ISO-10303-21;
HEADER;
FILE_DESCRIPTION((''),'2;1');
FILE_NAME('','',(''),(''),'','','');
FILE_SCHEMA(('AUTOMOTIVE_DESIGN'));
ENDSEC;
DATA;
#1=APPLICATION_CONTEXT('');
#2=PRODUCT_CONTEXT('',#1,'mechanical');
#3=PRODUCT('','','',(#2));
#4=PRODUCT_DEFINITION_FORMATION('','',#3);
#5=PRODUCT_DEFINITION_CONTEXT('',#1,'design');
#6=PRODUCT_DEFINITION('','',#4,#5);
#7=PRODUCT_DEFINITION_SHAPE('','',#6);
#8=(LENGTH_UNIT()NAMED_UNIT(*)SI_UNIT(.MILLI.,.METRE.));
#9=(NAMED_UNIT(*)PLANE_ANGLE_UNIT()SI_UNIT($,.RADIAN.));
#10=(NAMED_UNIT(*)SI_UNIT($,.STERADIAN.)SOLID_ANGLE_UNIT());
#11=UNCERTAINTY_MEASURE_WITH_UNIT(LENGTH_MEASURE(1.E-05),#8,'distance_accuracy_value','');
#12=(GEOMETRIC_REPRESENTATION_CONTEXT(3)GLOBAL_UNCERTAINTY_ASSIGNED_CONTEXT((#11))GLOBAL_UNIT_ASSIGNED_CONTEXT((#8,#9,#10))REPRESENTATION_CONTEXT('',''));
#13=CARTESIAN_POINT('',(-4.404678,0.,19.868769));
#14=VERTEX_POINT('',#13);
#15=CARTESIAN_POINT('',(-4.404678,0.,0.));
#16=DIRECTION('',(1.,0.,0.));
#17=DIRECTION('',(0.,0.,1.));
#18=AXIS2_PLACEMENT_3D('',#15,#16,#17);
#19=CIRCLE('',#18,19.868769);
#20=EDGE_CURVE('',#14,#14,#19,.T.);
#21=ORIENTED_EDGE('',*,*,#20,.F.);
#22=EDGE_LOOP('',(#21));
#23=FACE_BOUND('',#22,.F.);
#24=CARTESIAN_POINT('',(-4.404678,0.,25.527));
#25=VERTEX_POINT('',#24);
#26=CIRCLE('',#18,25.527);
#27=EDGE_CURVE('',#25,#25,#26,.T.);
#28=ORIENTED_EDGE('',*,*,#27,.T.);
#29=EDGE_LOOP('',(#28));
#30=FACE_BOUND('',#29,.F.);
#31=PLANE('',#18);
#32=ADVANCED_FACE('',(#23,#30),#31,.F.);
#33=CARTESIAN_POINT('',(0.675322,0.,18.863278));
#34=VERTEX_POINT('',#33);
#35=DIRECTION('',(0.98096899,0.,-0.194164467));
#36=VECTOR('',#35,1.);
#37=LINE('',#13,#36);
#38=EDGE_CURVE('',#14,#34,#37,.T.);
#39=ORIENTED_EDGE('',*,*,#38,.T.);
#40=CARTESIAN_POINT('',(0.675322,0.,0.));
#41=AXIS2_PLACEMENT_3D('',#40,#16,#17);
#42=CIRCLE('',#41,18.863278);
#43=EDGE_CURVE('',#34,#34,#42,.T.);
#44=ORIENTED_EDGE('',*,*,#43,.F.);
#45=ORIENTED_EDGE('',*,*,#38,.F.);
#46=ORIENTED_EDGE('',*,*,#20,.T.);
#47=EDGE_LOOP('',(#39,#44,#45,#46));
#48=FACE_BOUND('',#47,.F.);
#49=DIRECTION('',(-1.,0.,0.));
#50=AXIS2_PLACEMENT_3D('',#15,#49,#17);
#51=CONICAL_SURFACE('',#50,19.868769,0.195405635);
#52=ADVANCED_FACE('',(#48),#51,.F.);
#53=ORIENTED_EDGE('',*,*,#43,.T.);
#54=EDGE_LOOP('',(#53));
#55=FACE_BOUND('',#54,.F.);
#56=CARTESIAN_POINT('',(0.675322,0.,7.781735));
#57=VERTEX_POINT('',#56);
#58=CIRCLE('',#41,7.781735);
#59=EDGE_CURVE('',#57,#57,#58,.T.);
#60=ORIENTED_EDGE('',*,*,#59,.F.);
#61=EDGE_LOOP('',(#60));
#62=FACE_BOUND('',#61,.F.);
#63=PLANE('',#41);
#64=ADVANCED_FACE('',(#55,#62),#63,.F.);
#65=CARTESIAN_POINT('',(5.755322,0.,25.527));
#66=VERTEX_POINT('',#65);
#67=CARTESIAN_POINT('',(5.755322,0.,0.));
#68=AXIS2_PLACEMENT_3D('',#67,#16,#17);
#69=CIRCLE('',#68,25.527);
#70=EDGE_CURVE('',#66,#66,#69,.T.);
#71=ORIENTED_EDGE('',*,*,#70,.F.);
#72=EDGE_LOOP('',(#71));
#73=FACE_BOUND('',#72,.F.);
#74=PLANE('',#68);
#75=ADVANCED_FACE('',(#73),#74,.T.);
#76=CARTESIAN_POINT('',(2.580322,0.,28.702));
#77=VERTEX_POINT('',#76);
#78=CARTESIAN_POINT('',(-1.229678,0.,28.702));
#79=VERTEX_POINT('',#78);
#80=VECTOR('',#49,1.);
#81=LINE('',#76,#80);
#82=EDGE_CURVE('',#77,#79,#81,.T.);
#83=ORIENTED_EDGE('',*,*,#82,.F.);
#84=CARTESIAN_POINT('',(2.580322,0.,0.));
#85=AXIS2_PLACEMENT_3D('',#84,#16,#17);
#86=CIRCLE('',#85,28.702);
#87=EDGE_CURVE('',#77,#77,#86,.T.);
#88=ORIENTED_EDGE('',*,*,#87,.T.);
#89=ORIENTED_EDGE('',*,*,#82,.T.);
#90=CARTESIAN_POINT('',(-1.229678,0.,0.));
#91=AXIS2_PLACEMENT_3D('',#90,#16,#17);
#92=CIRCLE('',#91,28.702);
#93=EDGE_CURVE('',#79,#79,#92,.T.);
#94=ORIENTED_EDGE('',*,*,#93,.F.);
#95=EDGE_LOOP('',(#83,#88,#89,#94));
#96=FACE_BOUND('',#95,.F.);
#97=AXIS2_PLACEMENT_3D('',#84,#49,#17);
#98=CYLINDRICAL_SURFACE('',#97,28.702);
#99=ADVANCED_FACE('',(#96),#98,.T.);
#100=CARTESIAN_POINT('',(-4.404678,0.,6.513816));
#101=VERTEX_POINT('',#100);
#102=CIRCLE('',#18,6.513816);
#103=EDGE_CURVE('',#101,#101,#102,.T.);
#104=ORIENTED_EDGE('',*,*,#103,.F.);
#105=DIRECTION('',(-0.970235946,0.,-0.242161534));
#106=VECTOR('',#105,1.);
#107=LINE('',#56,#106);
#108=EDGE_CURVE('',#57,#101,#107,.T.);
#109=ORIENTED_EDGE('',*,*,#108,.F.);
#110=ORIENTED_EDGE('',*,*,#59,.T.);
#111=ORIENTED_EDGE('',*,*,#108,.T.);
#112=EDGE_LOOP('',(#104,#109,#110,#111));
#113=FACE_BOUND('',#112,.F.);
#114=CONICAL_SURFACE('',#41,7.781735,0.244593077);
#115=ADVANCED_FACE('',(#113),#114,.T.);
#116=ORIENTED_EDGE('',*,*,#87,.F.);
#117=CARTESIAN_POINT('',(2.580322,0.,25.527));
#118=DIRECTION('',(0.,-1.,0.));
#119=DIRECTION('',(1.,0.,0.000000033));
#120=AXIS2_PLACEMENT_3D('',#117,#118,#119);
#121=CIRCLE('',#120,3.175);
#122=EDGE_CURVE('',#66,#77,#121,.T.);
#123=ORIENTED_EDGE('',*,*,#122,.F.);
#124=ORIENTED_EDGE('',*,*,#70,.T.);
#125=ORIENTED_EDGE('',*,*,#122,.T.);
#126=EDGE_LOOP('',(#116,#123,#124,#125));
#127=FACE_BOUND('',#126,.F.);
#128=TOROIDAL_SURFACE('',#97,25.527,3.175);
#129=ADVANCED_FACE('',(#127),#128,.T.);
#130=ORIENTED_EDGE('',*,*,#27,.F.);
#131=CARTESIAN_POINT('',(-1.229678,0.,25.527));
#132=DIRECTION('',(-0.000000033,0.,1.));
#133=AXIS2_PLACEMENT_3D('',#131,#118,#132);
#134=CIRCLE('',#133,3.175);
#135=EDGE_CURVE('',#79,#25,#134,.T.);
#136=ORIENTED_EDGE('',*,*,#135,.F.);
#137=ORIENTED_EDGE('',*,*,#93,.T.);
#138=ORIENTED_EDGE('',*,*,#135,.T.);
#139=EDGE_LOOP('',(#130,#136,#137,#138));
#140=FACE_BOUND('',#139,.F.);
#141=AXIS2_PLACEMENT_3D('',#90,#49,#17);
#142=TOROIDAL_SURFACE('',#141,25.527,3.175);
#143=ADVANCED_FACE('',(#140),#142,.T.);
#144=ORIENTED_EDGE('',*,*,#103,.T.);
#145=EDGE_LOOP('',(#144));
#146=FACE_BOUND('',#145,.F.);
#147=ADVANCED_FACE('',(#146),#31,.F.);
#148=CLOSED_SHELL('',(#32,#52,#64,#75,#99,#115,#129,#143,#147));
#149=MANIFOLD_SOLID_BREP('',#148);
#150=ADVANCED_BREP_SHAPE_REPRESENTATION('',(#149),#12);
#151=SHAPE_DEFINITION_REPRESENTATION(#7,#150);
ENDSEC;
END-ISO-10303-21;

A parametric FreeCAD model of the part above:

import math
import FreeCAD as App
import Part
import Sketcher
from FreeCAD import Vector
Q = App.Units.Quantity

doc = App.newDocument("Part")
params = doc.addObject("Spreadsheet::Sheet", "Params")
for row, (alias, value) in enumerate([
    ("sketch1_width", "0.4 in"),
    ("sketch1_radius", "0.125 in"),
    ("sketch1_height", "1.005 in"),
    ("revolution_angle", "360 deg"),
], start=1):
    params.set(f"A{row}", alias)
    params.set(f"B{row}", "=" + value)
    params.setAlias(f"B{row}", alias)

body = doc.addObject("PartDesign::Body", "Body")

sketch1 = doc.addObject("Sketcher::SketchObject", "Sketch")
body.addObject(sketch1)
sketch1.AttachmentSupport = (doc.XZ_Plane, [""])
sketch1.MapMode = "FlatFace"
sketch1.addGeometry([
    Part.ArcOfCircle(Part.Circle(Vector(2.6, 25.5, 0), Vector(0, 0, 1), 3.2), math.radians(0), math.radians(90)),
    Part.LineSegment(Vector(2.6, 28.7, 0), Vector(-1.2, 28.7, 0)),
    Part.ArcOfCircle(Part.Circle(Vector(-1.2, 25.5, 0), Vector(0, 0, 1), 3.2), math.radians(90), math.radians(180)),
    Part.LineSegment(Vector(-4.4, 25.5, 0), Vector(-4.4, 19.9, 0)),
    Part.LineSegment(Vector(-4.4, 19.9, 0), Vector(0.7, 18.9, 0)),
    Part.LineSegment(Vector(0.7, 18.9, 0), Vector(0.7, 7.8, 0)),
    Part.LineSegment(Vector(0.7, 7.8, 0), Vector(-4.4, 6.5, 0)),
    Part.LineSegment(Vector(-4.4, 6.5, 0), Vector(-4.4, 0, 0)),
    Part.LineSegment(Vector(-4.4, 0, 0), Vector(5.8, 0, 0)),
    Part.LineSegment(Vector(5.8, 0, 0), Vector(5.8, 25.5, 0)),
], False)
sketch1.addConstraint([
    Sketcher.Constraint("Tangent", 0, 2, 1, 1),
    Sketcher.Constraint("Tangent", 1, 2, 2, 1),
    Sketcher.Constraint("Tangent", 2, 2, 3, 1),
    Sketcher.Constraint("Coincident", 3, 2, 4, 1),
    Sketcher.Constraint("Coincident", 4, 2, 5, 1),
    Sketcher.Constraint("Coincident", 5, 2, 6, 1),
    Sketcher.Constraint("Coincident", 6, 2, 7, 1),
    Sketcher.Constraint("Coincident", 7, 2, 8, 1),
    Sketcher.Constraint("Coincident", 8, 2, 9, 1),
    Sketcher.Constraint("Tangent", 9, 2, 0, 1),
    Sketcher.Constraint("Horizontal", 1),
    Sketcher.Constraint("Vertical", 3),
    Sketcher.Constraint("Vertical", 5),
    Sketcher.Constraint("Vertical", 7),
    Sketcher.Constraint("Horizontal", 8),
    Sketcher.Constraint("Vertical", 9),
    Sketcher.Constraint("Equal", 0, 2),
    Sketcher.Constraint("PointOnObject", 7, 2, -1),
    Sketcher.Constraint("Vertical", 3, 2, 6, 2),
    Sketcher.Constraint("DistanceX", 8, 1, 8, 2, Q("0.4 in")),
    Sketcher.Constraint("Radius", 0, Q("0.125 in")),
    Sketcher.Constraint("DistanceX", 3, 2, 4, 2, Q("0.2 in")),
    Sketcher.Constraint("DistanceY", 9, 1, 9, 2, Q("1.005 in")),
    Sketcher.Constraint("DistanceY", 3, 2, 3, 1, Q("5.658231 mm")),
    Sketcher.Constraint("Distance", 6, Q("5.23584 mm")),
    Sketcher.Constraint("DistanceY", 5, 2, 5, 1, Q("11.081543 mm")),
    Sketcher.Constraint("DistanceY", 7, 2, 7, 1, Q("6.513816 mm")),
    Sketcher.Constraint("DistanceX", -1, 1, 0, 3, Q("2.580322 mm")),
])
sketch1.setExpression("Constraints[19]", "Params.sketch1_width")
sketch1.setExpression("Constraints[20]", "Params.sketch1_radius")
sketch1.setExpression("Constraints[22]", "Params.sketch1_height")
revolution = doc.addObject("PartDesign::Revolution", "Revolution")
body.addObject(revolution)
revolution.Profile = sketch1
revolution.ReferenceAxis = (sketch1, ["H_Axis"])
revolution.setExpression("Angle", "Params.revolution_angle")

doc.recompute()
